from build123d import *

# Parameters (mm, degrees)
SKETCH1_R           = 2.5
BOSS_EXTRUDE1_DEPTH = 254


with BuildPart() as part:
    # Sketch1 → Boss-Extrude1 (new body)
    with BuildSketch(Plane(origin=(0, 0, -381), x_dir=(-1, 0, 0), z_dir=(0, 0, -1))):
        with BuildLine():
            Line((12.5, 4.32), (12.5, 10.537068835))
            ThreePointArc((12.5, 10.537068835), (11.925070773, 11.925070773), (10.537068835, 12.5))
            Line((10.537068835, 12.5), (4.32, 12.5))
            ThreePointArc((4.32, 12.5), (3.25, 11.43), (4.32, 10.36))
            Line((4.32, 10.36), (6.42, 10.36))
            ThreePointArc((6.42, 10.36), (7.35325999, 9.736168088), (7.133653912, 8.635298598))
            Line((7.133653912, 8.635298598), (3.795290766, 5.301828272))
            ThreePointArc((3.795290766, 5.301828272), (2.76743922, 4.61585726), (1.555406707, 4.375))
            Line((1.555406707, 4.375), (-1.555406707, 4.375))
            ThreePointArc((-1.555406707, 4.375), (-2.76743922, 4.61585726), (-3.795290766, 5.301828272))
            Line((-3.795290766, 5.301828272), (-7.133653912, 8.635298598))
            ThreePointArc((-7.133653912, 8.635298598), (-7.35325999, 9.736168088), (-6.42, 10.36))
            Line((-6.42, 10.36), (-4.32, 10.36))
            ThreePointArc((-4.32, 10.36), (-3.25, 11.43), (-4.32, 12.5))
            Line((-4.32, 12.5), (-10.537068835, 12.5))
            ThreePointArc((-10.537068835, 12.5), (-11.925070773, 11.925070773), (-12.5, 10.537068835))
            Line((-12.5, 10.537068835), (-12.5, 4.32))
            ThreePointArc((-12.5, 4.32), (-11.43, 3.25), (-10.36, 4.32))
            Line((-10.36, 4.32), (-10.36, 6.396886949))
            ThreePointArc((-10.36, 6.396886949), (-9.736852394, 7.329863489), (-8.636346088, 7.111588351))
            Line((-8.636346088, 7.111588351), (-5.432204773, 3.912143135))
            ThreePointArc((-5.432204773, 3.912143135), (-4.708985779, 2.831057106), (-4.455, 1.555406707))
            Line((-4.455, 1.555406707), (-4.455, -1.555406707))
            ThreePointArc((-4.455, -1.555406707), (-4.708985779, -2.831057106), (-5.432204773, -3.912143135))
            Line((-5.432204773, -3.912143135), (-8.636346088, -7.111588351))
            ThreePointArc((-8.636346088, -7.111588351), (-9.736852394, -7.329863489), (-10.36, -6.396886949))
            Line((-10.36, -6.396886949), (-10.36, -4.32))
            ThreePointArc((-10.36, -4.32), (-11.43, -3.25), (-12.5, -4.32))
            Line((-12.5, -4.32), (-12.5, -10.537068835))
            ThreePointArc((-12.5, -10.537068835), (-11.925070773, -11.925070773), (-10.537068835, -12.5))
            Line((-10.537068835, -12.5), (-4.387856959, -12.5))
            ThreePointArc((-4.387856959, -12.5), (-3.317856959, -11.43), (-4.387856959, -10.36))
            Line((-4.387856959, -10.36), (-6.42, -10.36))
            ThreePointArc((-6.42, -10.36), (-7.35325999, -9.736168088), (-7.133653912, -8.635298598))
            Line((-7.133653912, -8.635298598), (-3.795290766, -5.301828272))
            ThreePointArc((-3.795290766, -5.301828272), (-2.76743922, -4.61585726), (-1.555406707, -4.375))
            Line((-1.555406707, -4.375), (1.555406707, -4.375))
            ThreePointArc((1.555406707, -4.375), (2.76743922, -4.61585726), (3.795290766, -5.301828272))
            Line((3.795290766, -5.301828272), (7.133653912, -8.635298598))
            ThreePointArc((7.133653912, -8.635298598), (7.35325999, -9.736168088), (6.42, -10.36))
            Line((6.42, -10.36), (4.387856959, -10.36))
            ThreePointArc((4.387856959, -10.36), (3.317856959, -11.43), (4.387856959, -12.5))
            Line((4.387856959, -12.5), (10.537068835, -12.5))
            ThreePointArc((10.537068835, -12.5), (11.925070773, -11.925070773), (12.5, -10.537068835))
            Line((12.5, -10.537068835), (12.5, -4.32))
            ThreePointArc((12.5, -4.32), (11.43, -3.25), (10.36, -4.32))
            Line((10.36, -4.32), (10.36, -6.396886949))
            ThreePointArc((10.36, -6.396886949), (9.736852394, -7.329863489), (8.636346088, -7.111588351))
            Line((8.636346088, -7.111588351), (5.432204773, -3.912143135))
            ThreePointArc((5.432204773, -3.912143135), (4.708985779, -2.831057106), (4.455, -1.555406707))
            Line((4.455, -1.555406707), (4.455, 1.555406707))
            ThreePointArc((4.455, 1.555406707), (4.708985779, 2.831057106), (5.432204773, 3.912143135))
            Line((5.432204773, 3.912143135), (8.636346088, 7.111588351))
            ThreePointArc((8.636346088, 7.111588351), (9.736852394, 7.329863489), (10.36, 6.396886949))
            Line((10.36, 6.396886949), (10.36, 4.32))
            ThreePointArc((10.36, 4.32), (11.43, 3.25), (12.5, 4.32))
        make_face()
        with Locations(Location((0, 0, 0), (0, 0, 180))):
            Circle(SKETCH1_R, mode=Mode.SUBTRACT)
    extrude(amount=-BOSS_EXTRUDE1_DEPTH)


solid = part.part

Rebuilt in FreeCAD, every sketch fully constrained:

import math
import FreeCAD as App
import Part
import Sketcher

doc = App.newDocument("Part")
body = doc.addObject("PartDesign::Body", "Body")

# Sketch on XY plane
sketch1 = body.newObject("Sketcher::SketchObject", "Sketch")
sketch1.AttachmentSupport = (doc.getObject("XY_Plane"), [""])
sketch1.MapMode = "FlatFace"
sketch1.AttachmentOffset = App.Placement(App.Vector(0, 0, -381), App.Rotation())
sketch1.addGeometry([
    Part.LineSegment(App.Vector(-12.5, 4.3, 0), App.Vector(-12.5, 10.5, 0)),  # 0
    Part.ArcOfCircle(Part.Circle(App.Vector(-10.5, 10.5, 0), App.Vector(0, 0, 1), 2), math.radians(90), math.radians(180)),  # 1
    Part.LineSegment(App.Vector(-10.5, 12.5, 0), App.Vector(-4.3, 12.5, 0)),  # 2
    Part.ArcOfCircle(Part.Circle(App.Vector(-4.3, 11.4, 0), App.Vector(0, 0, 1), 1.1), math.radians(-90), math.radians(90)),  # 3
    Part.LineSegment(App.Vector(-4.3, 10.4, 0), App.Vector(-6.4, 10.4, 0)),  # 4
    Part.ArcOfCircle(Part.Circle(App.Vector(-6.4, 9.3, 0), App.Vector(0, 0, 1), 1), math.radians(90), math.radians(225)),  # 5
    Part.LineSegment(App.Vector(-7.1, 8.6, 0), App.Vector(-3.8, 5.3, 0)),  # 6
    Part.ArcOfCircle(Part.Circle(App.Vector(-1.6, 7.5, 0), App.Vector(0, 0, 1), 3.2), math.radians(-135), math.radians(-90)),  # 7
    Part.LineSegment(App.Vector(-1.6, 4.4, 0), App.Vector(1.6, 4.4, 0)),  # 8
    Part.ArcOfCircle(Part.Circle(App.Vector(1.6, 7.5, 0), App.Vector(0, 0, 1), 3.2), math.radians(-90), math.radians(-45)),  # 9
    Part.LineSegment(App.Vector(3.8, 5.3, 0), App.Vector(7.1, 8.6, 0)),  # 10
    Part.ArcOfCircle(Part.Circle(App.Vector(6.4, 9.3, 0), App.Vector(0, 0, 1), 1), math.radians(-45), math.radians(90)),  # 11
    Part.LineSegment(App.Vector(6.4, 10.4, 0), App.Vector(4.3, 10.4, 0)),  # 12
    Part.ArcOfCircle(Part.Circle(App.Vector(4.3, 11.4, 0), App.Vector(0, 0, 1), 1.1), math.radians(90), math.radians(270)),  # 13
    Part.LineSegment(App.Vector(4.3, 12.5, 0), App.Vector(10.5, 12.5, 0)),  # 14
    Part.ArcOfCircle(Part.Circle(App.Vector(10.5, 10.5, 0), App.Vector(0, 0, 1), 2), math.radians(0), math.radians(90)),  # 15
    Part.LineSegment(App.Vector(12.5, 10.5, 0), App.Vector(12.5, 4.3, 0)),  # 16
    Part.ArcOfCircle(Part.Circle(App.Vector(11.4, 4.3, 0), App.Vector(0, 0, 1), 1.1), math.radians(180), math.radians(360)),  # 17
    Part.LineSegment(App.Vector(10.4, 4.3, 0), App.Vector(10.4, 6.4, 0)),  # 18
    Part.ArcOfCircle(Part.Circle(App.Vector(9.3, 6.4, 0), App.Vector(0, 0, 1), 1), math.radians(0), math.radians(135)),  # 19
    Part.LineSegment(App.Vector(8.6, 7.1, 0), App.Vector(5.4, 3.9, 0)),  # 20
    Part.ArcOfCircle(Part.Circle(App.Vector(7.8, 1.6, 0), App.Vector(0, 0, 1), 3.3), math.radians(135), math.radians(180)),  # 21
    Part.LineSegment(App.Vector(4.5, 1.6, 0), App.Vector(4.5, -1.6, 0)),  # 22
    Part.ArcOfCircle(Part.Circle(App.Vector(7.8, -1.6, 0), App.Vector(0, 0, 1), 3.3), math.radians(180), math.radians(225)),  # 23
    Part.LineSegment(App.Vector(5.4, -3.9, 0), App.Vector(8.6, -7.1, 0)),  # 24
    Part.ArcOfCircle(Part.Circle(App.Vector(9.3, -6.4, 0), App.Vector(0, 0, 1), 1), math.radians(-135), math.radians(0)),  # 25
    Part.LineSegment(App.Vector(10.4, -6.4, 0), App.Vector(10.4, -4.3, 0)),  # 26
    Part.ArcOfCircle(Part.Circle(App.Vector(11.4, -4.3, 0), App.Vector(0, 0, 1), 1.1), math.radians(0), math.radians(180)),  # 27
    Part.LineSegment(App.Vector(12.5, -4.3, 0), App.Vector(12.5, -10.5, 0)),  # 28
    Part.ArcOfCircle(Part.Circle(App.Vector(10.5, -10.5, 0), App.Vector(0, 0, 1), 2), math.radians(-90), math.radians(0)),  # 29
    Part.LineSegment(App.Vector(10.5, -12.5, 0), App.Vector(4.4, -12.5, 0)),  # 30
    Part.ArcOfCircle(Part.Circle(App.Vector(4.4, -11.4, 0), App.Vector(0, 0, 1), 1.1), math.radians(90), math.radians(270)),  # 31
    Part.LineSegment(App.Vector(4.4, -10.4, 0), App.Vector(6.4, -10.4, 0)),  # 32
    Part.ArcOfCircle(Part.Circle(App.Vector(6.4, -9.3, 0), App.Vector(0, 0, 1), 1), math.radians(-90), math.radians(45)),  # 33
    Part.LineSegment(App.Vector(7.1, -8.6, 0), App.Vector(3.8, -5.3, 0)),  # 34
    Part.ArcOfCircle(Part.Circle(App.Vector(1.6, -7.5, 0), App.Vector(0, 0, 1), 3.2), math.radians(45), math.radians(90)),  # 35
    Part.LineSegment(App.Vector(1.6, -4.4, 0), App.Vector(-1.6, -4.4, 0)),  # 36
    Part.ArcOfCircle(Part.Circle(App.Vector(-1.6, -7.5, 0), App.Vector(0, 0, 1), 3.2), math.radians(90), math.radians(135)),  # 37
    Part.LineSegment(App.Vector(-3.8, -5.3, 0), App.Vector(-7.1, -8.6, 0)),  # 38
    Part.ArcOfCircle(Part.Circle(App.Vector(-6.4, -9.3, 0), App.Vector(0, 0, 1), 1), math.radians(135), math.radians(270)),  # 39
    Part.LineSegment(App.Vector(-6.4, -10.4, 0), App.Vector(-4.4, -10.4, 0)),  # 40
    Part.ArcOfCircle(Part.Circle(App.Vector(-4.4, -11.4, 0), App.Vector(0, 0, 1), 1.1), math.radians(-90), math.radians(90)),  # 41
    Part.LineSegment(App.Vector(-4.4, -12.5, 0), App.Vector(-10.5, -12.5, 0)),  # 42
    Part.ArcOfCircle(Part.Circle(App.Vector(-10.5, -10.5, 0), App.Vector(0, 0, 1), 2), math.radians(180), math.radians(270)),  # 43
    Part.LineSegment(App.Vector(-12.5, -10.5, 0), App.Vector(-12.5, -4.3, 0)),  # 44
    Part.ArcOfCircle(Part.Circle(App.Vector(-11.4, -4.3, 0), App.Vector(0, 0, 1), 1.1), math.radians(0), math.radians(180)),  # 45
    Part.LineSegment(App.Vector(-10.4, -4.3, 0), App.Vector(-10.4, -6.4, 0)),  # 46
    Part.ArcOfCircle(Part.Circle(App.Vector(-9.3, -6.4, 0), App.Vector(0, 0, 1), 1), math.radians(-180), math.radians(-45)),  # 47
    Part.LineSegment(App.Vector(-8.6, -7.1, 0), App.Vector(-5.4, -3.9, 0)),  # 48
    Part.ArcOfCircle(Part.Circle(App.Vector(-7.8, -1.6, 0), App.Vector(0, 0, 1), 3.3), math.radians(-45), math.radians(0)),  # 49
    Part.LineSegment(App.Vector(-4.5, -1.6, 0), App.Vector(-4.5, 1.6, 0)),  # 50
    Part.ArcOfCircle(Part.Circle(App.Vector(-7.8, 1.6, 0), App.Vector(0, 0, 1), 3.3), math.radians(0), math.radians(45)),  # 51
    Part.LineSegment(App.Vector(-5.4, 3.9, 0), App.Vector(-8.6, 7.1, 0)),  # 52
    Part.ArcOfCircle(Part.Circle(App.Vector(-9.3, 6.4, 0), App.Vector(0, 0, 1), 1), math.radians(45), math.radians(180)),  # 53
    Part.LineSegment(App.Vector(-10.4, 6.4, 0), App.Vector(-10.4, 4.3, 0)),  # 54
    Part.ArcOfCircle(Part.Circle(App.Vector(-11.4, 4.3, 0), App.Vector(0, 0, 1), 1.1), math.radians(180), math.radians(360)),  # 55
    Part.Circle(App.Vector(0, 0, 0), App.Vector(0, 0, 1), 2.5),  # 56
], False)
sketch1.addConstraint([
    Sketcher.Constraint("Tangent", 0, 2, 1, 2),
    Sketcher.Constraint("Tangent", 1, 1, 2, 1),
    Sketcher.Constraint("Tangent", 2, 2, 3, 2),
    Sketcher.Constraint("Tangent", 3, 1, 4, 1),
    Sketcher.Constraint("Tangent", 4, 2, 5, 1),
    Sketcher.Constraint("Tangent", 5, 2, 6, 1),
    Sketcher.Constraint("Tangent", 6, 2, 7, 1),
    Sketcher.Constraint("Tangent", 7, 2, 8, 1),
    Sketcher.Constraint("Tangent", 8, 2, 9, 1),
    Sketcher.Constraint("Tangent", 9, 2, 10, 1),
    Sketcher.Constraint("Tangent", 10, 2, 11, 1),
    Sketcher.Constraint("Tangent", 11, 2, 12, 1),
    Sketcher.Constraint("Tangent", 12, 2, 13, 2),
    Sketcher.Constraint("Tangent", 13, 1, 14, 1),
    Sketcher.Constraint("Tangent", 14, 2, 15, 2),
    Sketcher.Constraint("Tangent", 15, 1, 16, 1),
    Sketcher.Constraint("Tangent", 16, 2, 17, 2),
    Sketcher.Constraint("Tangent", 17, 1, 18, 1),
    Sketcher.Constraint("Tangent", 18, 2, 19, 1),
    Sketcher.Constraint("Tangent", 19, 2, 20, 1),
    Sketcher.Constraint("Tangent", 20, 2, 21, 1),
    Sketcher.Constraint("Tangent", 21, 2, 22, 1),
    Sketcher.Constraint("Tangent", 22, 2, 23, 1),
    Sketcher.Constraint("Tangent", 23, 2, 24, 1),
    Sketcher.Constraint("Tangent", 24, 2, 25, 1),
    Sketcher.Constraint("Tangent", 25, 2, 26, 1),
    Sketcher.Constraint("Tangent", 26, 2, 27, 2),
    Sketcher.Constraint("Tangent", 27, 1, 28, 1),
    Sketcher.Constraint("Tangent", 28, 2, 29, 2),
    Sketcher.Constraint("Tangent", 29, 1, 30, 1),
    Sketcher.Constraint("Tangent", 30, 2, 31, 2),
    Sketcher.Constraint("Tangent", 31, 1, 32, 1),
    Sketcher.Constraint("Tangent", 32, 2, 33, 1),
    Sketcher.Constraint("Tangent", 33, 2, 34, 1),
    Sketcher.Constraint("Tangent", 34, 2, 35, 1),
    Sketcher.Constraint("Tangent", 35, 2, 36, 1),
    Sketcher.Constraint("Tangent", 36, 2, 37, 1),
    Sketcher.Constraint("Tangent", 37, 2, 38, 1),
    Sketcher.Constraint("Tangent", 38, 2, 39, 1),
    Sketcher.Constraint("Tangent", 39, 2, 40, 1),
    Sketcher.Constraint("Tangent", 40, 2, 41, 2),
    Sketcher.Constraint("Tangent", 41, 1, 42, 1),
    Sketcher.Constraint("Tangent", 42, 2, 43, 2),
    Sketcher.Constraint("Tangent", 43, 1, 44, 1),
    Sketcher.Constraint("Tangent", 44, 2, 45, 2),
    Sketcher.Constraint("Tangent", 45, 1, 46, 1),
    Sketcher.Constraint("Tangent", 46, 2, 47, 1),
    Sketcher.Constraint("Tangent", 47, 2, 48, 1),
    Sketcher.Constraint("Tangent", 48, 2, 49, 1),
    Sketcher.Constraint("Tangent", 49, 2, 50, 1),
    Sketcher.Constraint("Tangent", 50, 2, 51, 1),
    Sketcher.Constraint("Tangent", 51, 2, 52, 1),
    Sketcher.Constraint("Tangent", 52, 2, 53, 1),
    Sketcher.Constraint("Tangent", 53, 2, 54, 1),
    Sketcher.Constraint("Tangent", 54, 2, 55, 2),
    Sketcher.Constraint("Tangent", 55, 1, 0, 1),
    Sketcher.Constraint("Vertical", 0),
    Sketcher.Constraint("Horizontal", 2),
    Sketcher.Constraint("Horizontal", 4),
    Sketcher.Constraint("Horizontal", 8),
    Sketcher.Constraint("Horizontal", 12),
    Sketcher.Constraint("Horizontal", 14),
    Sketcher.Constraint("Vertical", 16),
    Sketcher.Constraint("Vertical", 18),
    Sketcher.Constraint("Vertical", 22),
    Sketcher.Constraint("Vertical", 26),
    Sketcher.Constraint("Vertical", 28),
    Sketcher.Constraint("Horizontal", 30),
    Sketcher.Constraint("Horizontal", 32),
    Sketcher.Constraint("Horizontal", 36),
    Sketcher.Constraint("Horizontal", 40),
    Sketcher.Constraint("Horizontal", 42),
    Sketcher.Constraint("Vertical", 44),
    Sketcher.Constraint("Vertical", 46),
    Sketcher.Constraint("Vertical", 50),
    Sketcher.Constraint("Vertical", 54),
    Sketcher.Constraint("Coincident", 56, 3, -1, 1),
    Sketcher.Constraint("Equal", 7, 9),
    Sketcher.Constraint("Equal", 5, 11),
    Sketcher.Constraint("Equal", 3, 13),
    Sketcher.Constraint("Equal", 1, 15),
    Sketcher.Constraint("Equal", 13, 17),
    Sketcher.Constraint("Equal", 11, 19),
    Sketcher.Constraint("Equal", 21, 23),
    Sketcher.Constraint("Equal", 19, 25),
    Sketcher.Constraint("Equal", 17, 27),
    Sketcher.Constraint("Equal", 15, 29),
    Sketcher.Constraint("Equal", 27, 31),
    Sketcher.Constraint("Equal", 25, 33),
    Sketcher.Constraint("Equal", 9, 35),
    Sketcher.Constraint("Equal", 35, 37),
    Sketcher.Constraint("Equal", 33, 39),
    Sketcher.Constraint("Equal", 31, 41),
    Sketcher.Constraint("Equal", 29, 43),
    Sketcher.Constraint("Equal", 41, 45),
    Sketcher.Constraint("Equal", 39, 47),
    Sketcher.Constraint("Equal", 23, 49),
    Sketcher.Constraint("Equal", 49, 51),
    Sketcher.Constraint("Equal", 47, 53),
    Sketcher.Constraint("Equal", 45, 55),
    Sketcher.Constraint("Symmetric", 1, 3, 29, 3, -1, 1),
    Sketcher.Constraint("Symmetric", 7, 3, 35, 3, -1, 1),
    Sketcher.Constraint("Symmetric", 11, 3, 39, 3, -1, 1),
    Sketcher.Constraint("Symmetric", 17, 3, 45, 3, -1, 1),
    Sketcher.Constraint("Symmetric", 21, 3, 49, 3, -1, 1),
    Sketcher.Constraint("Symmetric", 23, 2, 51, 2, -1, 1),
    Sketcher.Constraint("Symmetric", 5, 3, 11, 3, -2),
    Sketcher.Constraint("Symmetric", 27, 3, 45, 3, -2),
    Sketcher.Constraint("Symmetric", 34, 2, 37, 2, -2),
    Sketcher.Constraint("Symmetric", 24, 2, 47, 2, -2),
    Sketcher.Constraint("Parallel", 10, 20),
    Sketcher.Constraint("Parallel", 6, 24),
    Sketcher.Constraint("Parallel", 20, 38),
    Sketcher.Constraint("Horizontal", 17, 3, 55, 3),
    Sketcher.Constraint("Equal", 4, 12),
    Sketcher.Constraint("Equal", 32, 40),
    Sketcher.Constraint("Equal", 14, 0),
    Sketcher.Constraint("Equal", 36, 22),
    Sketcher.Constraint("Diameter", 56, 5.0),
    Sketcher.Constraint("Radius", 3, 1.07),
    Sketcher.Constraint("Radius", 5, 1.01),
    Sketcher.Constraint("Radius", 7, 3.17),
    Sketcher.Constraint("DistanceX", 4, 2, 4, 1, 2.1),
    Sketcher.Constraint("DistanceX", 0, 2, -1, 1, 12.5),
    Sketcher.Constraint("DistanceY", -1, 1, 1, 1, 12.5),
    Sketcher.Constraint("DistanceX", 3, 3, -1, 1, 4.32),
    Sketcher.Constraint("Radius", 1, 1.962931),
    Sketcher.Constraint("DistanceY", -1, 1, 7, 3, 7.545),
    Sketcher.Constraint("DistanceX", -1, 1, 21, 2, 4.455),
    Sketcher.Constraint("Radius", 21, 3.330487),
    Sketcher.Constraint("Distance", 6, 4.7177),
    Sketcher.Constraint("DistanceX", 30, 2, 30, 1, 6.149212),
])
pad1 = body.newObject("PartDesign::Pad", "Pad")
pad1.Profile = sketch1
pad1.Length = 254

doc.recompute()
